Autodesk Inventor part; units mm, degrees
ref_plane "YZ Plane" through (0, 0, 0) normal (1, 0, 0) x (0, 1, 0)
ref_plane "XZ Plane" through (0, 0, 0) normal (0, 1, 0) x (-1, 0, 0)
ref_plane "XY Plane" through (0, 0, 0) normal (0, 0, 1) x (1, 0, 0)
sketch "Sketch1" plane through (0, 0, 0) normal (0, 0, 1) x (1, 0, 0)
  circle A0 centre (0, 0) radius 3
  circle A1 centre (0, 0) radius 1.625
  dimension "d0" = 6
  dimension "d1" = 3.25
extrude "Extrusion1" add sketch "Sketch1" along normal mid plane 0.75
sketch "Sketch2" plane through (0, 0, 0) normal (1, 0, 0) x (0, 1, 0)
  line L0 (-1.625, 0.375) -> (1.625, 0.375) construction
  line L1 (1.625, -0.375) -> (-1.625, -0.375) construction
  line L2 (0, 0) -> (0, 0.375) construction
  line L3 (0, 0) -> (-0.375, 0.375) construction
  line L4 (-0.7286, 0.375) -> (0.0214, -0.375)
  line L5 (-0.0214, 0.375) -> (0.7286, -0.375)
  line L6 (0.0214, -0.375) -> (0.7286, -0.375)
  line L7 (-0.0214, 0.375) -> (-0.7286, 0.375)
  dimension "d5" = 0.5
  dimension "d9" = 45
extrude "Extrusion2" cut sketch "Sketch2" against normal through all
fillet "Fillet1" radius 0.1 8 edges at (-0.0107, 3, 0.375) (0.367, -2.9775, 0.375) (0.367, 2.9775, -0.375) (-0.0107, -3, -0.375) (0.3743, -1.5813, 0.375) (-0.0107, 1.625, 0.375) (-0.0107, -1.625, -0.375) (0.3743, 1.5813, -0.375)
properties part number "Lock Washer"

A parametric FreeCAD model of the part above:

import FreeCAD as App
import Part
import Sketcher
Q = App.Units.Quantity


def edges_at(feature, points):
    """Names of the edges that pass closest to the given points."""
    edges = feature.Shape.Edges
    near = lambda p: min(range(len(edges)), key=lambda i: edges[i].distToShape(Part.Vertex(*p))[0])
    return sorted({f"Edge{near(p) + 1}" for p in points})

doc = App.newDocument("Part")
params = doc.addObject("Spreadsheet::Sheet", "Params")
for row, (alias, value) in enumerate([
    ("sketch1_diameter", "6 mm"),
    ("sketch1_diameter2", "3.25 mm"),
    ("pad1_length", "0.75 mm"),
    ("fillet_radius", "0.1 mm"),
], start=1):
    params.set(f"A{row}", alias)
    params.set(f"B{row}", "=" + value)
    params.setAlias(f"B{row}", alias)

body = doc.addObject("PartDesign::Body", "Body")

# Sketch on XY plane
sketch1 = doc.addObject("Sketcher::SketchObject", "Sketch")
body.addObject(sketch1)
sketch1.AttachmentSupport = (doc.XY_Plane, [""])
sketch1.MapMode = "FlatFace"
sketch1.addGeometry([
    Part.Circle(App.Vector(0, 0, 0), App.Vector(0, 0, 1), 3),
    Part.Circle(App.Vector(0, 0, 0), App.Vector(0, 0, 1), 1.6),
], False)
sketch1.addConstraint([
    Sketcher.Constraint("Coincident", 0, 3, -1, 1),
    Sketcher.Constraint("Coincident", 1, 3, -1, 1),
    Sketcher.Constraint("Diameter", 0, Q("6 mm")),
    Sketcher.Constraint("Diameter", 1, Q("3.25 mm")),
])
sketch1.setExpression("Constraints[2]", "Params.sketch1_diameter")
sketch1.setExpression("Constraints[3]", "Params.sketch1_diameter2")
pad1 = doc.addObject("PartDesign::Pad", "Pad")
body.addObject(pad1)
pad1.Profile = sketch1
pad1.setExpression("Length", "Params.pad1_length")
pad1.Midplane = True

# Sketch on YZ plane
sketch2 = doc.addObject("Sketcher::SketchObject", "Sketch001")
body.addObject(sketch2)
sketch2.AttachmentSupport = (doc.YZ_Plane, [""])
sketch2.MapMode = "FlatFace"
sketch2.addGeometry([
    Part.LineSegment(App.Vector(0, 0.4, 0), App.Vector(-0.7, 0.4, 0)),
    Part.LineSegment(App.Vector(-0.7, 0.4, 0), App.Vector(0, -0.4, 0)),
    Part.LineSegment(App.Vector(0, -0.4, 0), App.Vector(0.7, -0.4, 0)),
    Part.LineSegment(App.Vector(0.7, -0.4, 0), App.Vector(0, 0.4, 0)),
], False)
sketch2.addConstraint([
    Sketcher.Constraint("Coincident", 0, 2, 1, 1),
    Sketcher.Constraint("Coincident", 1, 2, 2, 1),
    Sketcher.Constraint("Coincident", 2, 2, 3, 1),
    Sketcher.Constraint("Coincident", 3, 2, 0, 1),
    Sketcher.Constraint("Horizontal", 0),
    Sketcher.Constraint("Horizontal", 2),
    Sketcher.Constraint("Symmetric", 0, 2, 2, 2, -1, 1),
    Sketcher.Constraint("Parallel", 1, 3),
    Sketcher.Constraint("Angle", 1, Q("-45 deg")),
    Sketcher.Constraint("DistanceX", 0, 2, 1, 2, Q("0.75 mm")),
    Sketcher.Constraint("DistanceX", 0, 2, 0, 1, Q("0.7072 mm")),
])
pocket1 = doc.addObject("PartDesign::Pocket", "Pocket")
body.addObject(pocket1)
pocket1.Profile = sketch2
pocket1.Type = "ThroughAll"
doc.recompute()

fillet = doc.addObject("PartDesign::Fillet", "Fillet")
body.addObject(fillet)
fillet.Base = (pocket1, edges_at(pocket1, [
    (-0.011, 3, 0.375),
    (0.367, -2.978, 0.375),
    (0.367, 2.978, -0.375),
    (-0.011, -3, -0.375),
    (0.374, -1.581, 0.375),
    (-0.011, 1.625, 0.375),
    (-0.011, -1.625, -0.375),
    (0.374, 1.581, -0.375),
]))
fillet.setExpression("Radius", "Params.fillet_radius")

doc.recompute()
